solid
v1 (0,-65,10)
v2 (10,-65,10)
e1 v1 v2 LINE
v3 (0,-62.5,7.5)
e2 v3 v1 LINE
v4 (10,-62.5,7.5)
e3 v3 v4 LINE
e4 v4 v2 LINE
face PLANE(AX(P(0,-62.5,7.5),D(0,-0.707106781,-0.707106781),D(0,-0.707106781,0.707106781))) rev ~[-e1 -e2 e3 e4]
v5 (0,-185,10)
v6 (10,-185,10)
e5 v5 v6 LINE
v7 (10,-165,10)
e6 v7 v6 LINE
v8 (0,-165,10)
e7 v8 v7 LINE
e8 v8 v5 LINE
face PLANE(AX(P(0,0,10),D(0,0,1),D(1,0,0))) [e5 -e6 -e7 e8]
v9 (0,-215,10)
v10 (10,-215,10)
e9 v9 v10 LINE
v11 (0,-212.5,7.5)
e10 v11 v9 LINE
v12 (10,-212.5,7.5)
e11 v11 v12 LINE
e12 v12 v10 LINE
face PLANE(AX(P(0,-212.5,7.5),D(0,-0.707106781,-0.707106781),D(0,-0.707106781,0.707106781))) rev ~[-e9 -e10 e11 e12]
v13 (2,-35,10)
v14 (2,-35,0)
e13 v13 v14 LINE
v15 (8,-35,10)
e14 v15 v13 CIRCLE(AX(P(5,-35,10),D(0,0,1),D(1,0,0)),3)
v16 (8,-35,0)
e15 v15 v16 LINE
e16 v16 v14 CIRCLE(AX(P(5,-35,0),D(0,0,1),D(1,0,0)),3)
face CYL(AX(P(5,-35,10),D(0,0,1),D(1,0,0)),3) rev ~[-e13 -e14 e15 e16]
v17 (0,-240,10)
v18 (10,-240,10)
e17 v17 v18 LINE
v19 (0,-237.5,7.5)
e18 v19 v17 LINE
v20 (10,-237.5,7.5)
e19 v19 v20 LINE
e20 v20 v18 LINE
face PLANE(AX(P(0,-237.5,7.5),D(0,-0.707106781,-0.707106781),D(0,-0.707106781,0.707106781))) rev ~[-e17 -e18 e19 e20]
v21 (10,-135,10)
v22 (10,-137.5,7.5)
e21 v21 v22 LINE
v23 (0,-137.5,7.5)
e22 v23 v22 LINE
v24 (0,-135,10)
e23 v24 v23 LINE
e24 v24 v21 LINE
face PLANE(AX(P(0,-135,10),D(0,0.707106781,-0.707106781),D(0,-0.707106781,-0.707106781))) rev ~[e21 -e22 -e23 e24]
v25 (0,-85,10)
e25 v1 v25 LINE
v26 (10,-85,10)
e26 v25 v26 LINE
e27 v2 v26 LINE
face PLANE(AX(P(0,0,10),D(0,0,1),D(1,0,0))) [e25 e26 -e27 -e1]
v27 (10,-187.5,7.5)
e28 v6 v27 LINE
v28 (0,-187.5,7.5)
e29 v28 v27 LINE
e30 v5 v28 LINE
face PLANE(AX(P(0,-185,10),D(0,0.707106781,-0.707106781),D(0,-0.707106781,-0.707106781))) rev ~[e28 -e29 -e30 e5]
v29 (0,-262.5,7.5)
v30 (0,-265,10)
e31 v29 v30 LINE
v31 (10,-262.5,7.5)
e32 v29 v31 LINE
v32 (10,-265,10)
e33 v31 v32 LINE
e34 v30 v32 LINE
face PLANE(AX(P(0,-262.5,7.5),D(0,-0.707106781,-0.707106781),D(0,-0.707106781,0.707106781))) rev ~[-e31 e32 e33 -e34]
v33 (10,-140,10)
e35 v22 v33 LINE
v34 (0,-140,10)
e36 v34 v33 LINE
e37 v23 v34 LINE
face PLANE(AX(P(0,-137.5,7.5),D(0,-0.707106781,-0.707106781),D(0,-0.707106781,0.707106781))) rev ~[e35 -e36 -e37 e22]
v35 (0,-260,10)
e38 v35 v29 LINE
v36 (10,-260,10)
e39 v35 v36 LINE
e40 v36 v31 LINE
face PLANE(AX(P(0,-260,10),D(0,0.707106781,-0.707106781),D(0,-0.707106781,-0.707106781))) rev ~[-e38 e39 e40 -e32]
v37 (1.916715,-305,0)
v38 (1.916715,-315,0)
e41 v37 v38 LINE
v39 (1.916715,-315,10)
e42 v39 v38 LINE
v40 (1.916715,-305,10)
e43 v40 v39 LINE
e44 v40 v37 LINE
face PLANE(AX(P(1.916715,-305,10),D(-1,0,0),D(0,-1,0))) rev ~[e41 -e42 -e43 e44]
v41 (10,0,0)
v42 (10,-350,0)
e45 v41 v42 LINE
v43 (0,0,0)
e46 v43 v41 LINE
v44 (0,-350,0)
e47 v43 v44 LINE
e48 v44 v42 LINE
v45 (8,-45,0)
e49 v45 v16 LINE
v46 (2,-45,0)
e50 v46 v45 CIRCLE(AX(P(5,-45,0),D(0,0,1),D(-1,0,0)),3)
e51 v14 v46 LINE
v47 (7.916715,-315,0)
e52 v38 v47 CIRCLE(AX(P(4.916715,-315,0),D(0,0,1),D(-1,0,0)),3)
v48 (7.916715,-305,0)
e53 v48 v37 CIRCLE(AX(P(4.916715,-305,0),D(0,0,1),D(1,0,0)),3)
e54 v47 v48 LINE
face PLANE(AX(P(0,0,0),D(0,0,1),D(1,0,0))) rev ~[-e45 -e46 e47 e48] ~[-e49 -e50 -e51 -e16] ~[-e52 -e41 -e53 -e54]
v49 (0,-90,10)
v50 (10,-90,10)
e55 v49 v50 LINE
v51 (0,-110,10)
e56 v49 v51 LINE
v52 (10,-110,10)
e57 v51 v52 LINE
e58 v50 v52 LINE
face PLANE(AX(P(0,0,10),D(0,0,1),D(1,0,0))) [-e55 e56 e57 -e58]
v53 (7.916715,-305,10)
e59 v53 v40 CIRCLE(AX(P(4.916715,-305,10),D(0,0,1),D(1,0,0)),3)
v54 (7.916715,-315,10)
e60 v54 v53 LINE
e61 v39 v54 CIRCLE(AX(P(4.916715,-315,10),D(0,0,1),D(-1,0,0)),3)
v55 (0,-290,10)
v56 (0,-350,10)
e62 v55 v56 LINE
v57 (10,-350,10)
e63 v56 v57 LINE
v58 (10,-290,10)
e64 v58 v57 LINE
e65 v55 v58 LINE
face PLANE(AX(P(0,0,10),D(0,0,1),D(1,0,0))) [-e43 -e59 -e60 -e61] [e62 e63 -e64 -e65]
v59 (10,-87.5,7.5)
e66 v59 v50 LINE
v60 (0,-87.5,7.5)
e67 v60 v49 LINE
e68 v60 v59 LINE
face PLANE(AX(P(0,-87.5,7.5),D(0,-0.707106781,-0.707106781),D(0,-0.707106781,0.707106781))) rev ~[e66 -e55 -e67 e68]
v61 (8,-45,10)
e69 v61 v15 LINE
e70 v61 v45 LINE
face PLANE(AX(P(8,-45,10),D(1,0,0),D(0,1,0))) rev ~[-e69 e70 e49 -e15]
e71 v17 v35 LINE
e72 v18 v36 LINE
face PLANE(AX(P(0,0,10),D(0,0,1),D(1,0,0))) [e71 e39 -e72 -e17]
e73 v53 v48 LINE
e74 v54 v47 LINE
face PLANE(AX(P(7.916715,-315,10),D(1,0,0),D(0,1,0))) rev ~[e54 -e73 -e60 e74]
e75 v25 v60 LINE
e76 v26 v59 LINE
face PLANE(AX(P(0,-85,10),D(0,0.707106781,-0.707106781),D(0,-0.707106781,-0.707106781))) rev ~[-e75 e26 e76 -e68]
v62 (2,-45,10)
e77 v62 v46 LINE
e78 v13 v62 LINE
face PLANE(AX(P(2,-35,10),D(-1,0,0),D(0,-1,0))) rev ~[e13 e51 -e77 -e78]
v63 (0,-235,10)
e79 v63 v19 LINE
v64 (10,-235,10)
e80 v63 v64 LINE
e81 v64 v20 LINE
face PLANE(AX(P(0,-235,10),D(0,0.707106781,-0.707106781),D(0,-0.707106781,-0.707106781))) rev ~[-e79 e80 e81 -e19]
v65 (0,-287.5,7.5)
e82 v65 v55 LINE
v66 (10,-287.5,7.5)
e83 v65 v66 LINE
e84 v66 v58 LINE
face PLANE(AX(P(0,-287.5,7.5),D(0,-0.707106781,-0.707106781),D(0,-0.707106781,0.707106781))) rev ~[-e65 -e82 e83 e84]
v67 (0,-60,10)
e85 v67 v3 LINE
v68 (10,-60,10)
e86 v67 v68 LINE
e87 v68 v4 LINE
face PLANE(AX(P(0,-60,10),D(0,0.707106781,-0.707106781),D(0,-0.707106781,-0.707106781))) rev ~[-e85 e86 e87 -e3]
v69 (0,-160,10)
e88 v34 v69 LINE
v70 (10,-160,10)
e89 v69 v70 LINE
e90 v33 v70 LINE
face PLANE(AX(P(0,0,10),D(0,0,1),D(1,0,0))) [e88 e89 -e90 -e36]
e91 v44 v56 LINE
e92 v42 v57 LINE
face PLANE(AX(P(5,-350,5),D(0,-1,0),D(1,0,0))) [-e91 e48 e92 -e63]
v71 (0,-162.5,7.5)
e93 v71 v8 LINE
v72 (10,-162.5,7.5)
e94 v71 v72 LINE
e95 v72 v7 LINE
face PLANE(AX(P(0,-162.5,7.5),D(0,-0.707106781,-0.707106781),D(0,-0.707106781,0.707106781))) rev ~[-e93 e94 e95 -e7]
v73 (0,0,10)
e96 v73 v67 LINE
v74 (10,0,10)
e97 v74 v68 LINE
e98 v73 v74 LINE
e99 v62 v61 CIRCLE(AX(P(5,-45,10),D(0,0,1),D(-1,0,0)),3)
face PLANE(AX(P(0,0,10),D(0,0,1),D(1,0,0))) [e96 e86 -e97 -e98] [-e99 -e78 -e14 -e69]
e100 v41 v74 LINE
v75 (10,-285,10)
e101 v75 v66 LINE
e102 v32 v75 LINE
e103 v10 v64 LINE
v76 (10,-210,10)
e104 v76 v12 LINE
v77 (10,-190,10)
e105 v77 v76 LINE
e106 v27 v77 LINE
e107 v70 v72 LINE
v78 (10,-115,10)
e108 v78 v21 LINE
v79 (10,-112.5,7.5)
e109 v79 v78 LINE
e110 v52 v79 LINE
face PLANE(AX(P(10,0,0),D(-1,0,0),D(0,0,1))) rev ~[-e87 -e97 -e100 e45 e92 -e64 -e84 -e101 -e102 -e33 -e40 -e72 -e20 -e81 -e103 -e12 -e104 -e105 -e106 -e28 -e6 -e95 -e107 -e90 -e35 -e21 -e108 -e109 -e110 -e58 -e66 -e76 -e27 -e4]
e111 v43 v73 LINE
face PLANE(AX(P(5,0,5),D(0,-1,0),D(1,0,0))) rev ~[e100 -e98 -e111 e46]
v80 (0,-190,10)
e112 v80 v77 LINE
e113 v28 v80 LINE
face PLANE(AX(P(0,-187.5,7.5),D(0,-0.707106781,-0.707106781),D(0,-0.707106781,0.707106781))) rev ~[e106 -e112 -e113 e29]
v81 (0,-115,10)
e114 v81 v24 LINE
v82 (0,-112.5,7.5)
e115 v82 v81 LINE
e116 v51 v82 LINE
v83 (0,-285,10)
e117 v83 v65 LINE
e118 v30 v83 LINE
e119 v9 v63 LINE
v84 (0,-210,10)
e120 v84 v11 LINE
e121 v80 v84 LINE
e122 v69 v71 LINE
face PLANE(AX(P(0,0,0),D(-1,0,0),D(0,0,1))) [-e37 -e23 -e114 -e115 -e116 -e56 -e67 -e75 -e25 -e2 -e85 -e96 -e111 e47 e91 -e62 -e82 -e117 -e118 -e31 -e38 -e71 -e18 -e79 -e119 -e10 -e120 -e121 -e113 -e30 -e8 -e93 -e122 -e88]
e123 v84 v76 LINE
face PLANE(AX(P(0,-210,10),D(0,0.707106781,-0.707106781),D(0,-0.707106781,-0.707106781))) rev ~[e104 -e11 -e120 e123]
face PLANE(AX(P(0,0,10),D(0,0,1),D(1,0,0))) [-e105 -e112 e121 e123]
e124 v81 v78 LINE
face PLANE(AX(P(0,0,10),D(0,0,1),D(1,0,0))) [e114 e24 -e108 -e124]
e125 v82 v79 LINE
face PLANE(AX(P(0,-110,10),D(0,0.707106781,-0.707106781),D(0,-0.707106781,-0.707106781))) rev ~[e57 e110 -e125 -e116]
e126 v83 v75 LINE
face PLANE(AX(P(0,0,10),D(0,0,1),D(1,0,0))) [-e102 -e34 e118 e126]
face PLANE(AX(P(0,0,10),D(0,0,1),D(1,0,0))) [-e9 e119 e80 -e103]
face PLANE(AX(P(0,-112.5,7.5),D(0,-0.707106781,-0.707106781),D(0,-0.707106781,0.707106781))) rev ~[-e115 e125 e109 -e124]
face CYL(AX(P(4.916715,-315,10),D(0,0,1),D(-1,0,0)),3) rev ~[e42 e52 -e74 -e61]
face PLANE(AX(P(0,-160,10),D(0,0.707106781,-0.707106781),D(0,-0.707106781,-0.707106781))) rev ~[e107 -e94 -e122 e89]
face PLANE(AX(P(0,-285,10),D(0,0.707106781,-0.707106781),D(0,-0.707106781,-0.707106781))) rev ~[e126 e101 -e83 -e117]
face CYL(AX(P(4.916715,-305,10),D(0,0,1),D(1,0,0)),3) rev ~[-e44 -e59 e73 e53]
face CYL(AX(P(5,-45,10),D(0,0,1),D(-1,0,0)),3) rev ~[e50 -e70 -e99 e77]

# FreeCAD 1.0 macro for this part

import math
import FreeCAD as App
import Part
import Sketcher
from FreeCAD import Vector
Q = App.Units.Quantity


def add_polygon(sketch, points):
    """Adds a closed chain of lines whose ends are joined by coincident constraints."""
    first, n = sketch.GeometryCount, len(points)
    for a, b in zip(points, points[1:] + points[:1]):
        sketch.addGeometry(Part.LineSegment(App.Vector(*a, 0), App.Vector(*b, 0)), False)
    for i in range(n):
        sketch.addConstraint(Sketcher.Constraint("Coincident", first + i, 2, first + (i + 1) % n, 1))

doc = App.newDocument("Part")
params = doc.addObject("Spreadsheet::Sheet", "Params")
for row, (alias, value) in enumerate([
    ("sketch1_width", "10 mm"),
    ("pad1_length", "350 mm"),
    ("sketch2_width", "5 mm"),
    ("pocket1_length", "25 mm"),
    ("sketch3_radius", "3 mm"),
    ("sketch3_height", "10 mm"),
], start=1):
    params.set(f"A{row}", alias)
    params.set(f"B{row}", "=" + value)
    params.setAlias(f"B{row}", alias)

body = doc.addObject("PartDesign::Body", "Body")

sketch1 = body.newObject("Sketcher::SketchObject", "Sketch")
sketch1.AttachmentSupport = (doc.getObject("XZ_Plane"), [""])
sketch1.MapMode = "FlatFace"
add_polygon(sketch1, [(0, 10), (0, 0), (10, 0), (10, 10)])
sketch1.addConstraint(Sketcher.Constraint("Vertical", 0))
sketch1.addConstraint(Sketcher.Constraint("Horizontal", 1))
sketch1.addConstraint(Sketcher.Constraint("Vertical", 2))
sketch1.addConstraint(Sketcher.Constraint("Horizontal", 3))
sketch1.addConstraint(Sketcher.Constraint("Coincident", 0, 2, -1, 1))
sketch1.addConstraint(Sketcher.Constraint("Equal", 3, 0))
sketch1.addConstraint(Sketcher.Constraint("DistanceX", 1, 1, 1, 2, Q("10 mm")))
sketch1.setExpression("Constraints[10]", "Params.sketch1_width")
pad1 = body.newObject("PartDesign::Pad", "Pad")
pad1.Profile = sketch1
pad1.setExpression("Length", "Params.pad1_length")

sketch2 = body.newObject("Sketcher::SketchObject", "Sketch001")
sketch2.AttachmentSupport = (doc.getObject("YZ_Plane"), [""])
sketch2.MapMode = "FlatFace"
add_polygon(sketch2, [(-62.5, 7.5), (-65, 10), (-60, 10)])
add_polygon(sketch2, [(-87.5, 7.5), (-90, 10), (-85, 10)])
add_polygon(sketch2, [(-112.5, 7.5), (-115, 10), (-110, 10)])
add_polygon(sketch2, [(-137.5, 7.5), (-140, 10), (-135, 10)])
add_polygon(sketch2, [(-162.5, 7.5), (-165, 10), (-160, 10)])
add_polygon(sketch2, [(-187.5, 7.5), (-190, 10), (-185, 10)])
add_polygon(sketch2, [(-212.5, 7.5), (-215, 10), (-210, 10)])
add_polygon(sketch2, [(-237.5, 7.5), (-240, 10), (-235, 10)])
add_polygon(sketch2, [(-262.5, 7.5), (-265, 10), (-260, 10)])
add_polygon(sketch2, [(-287.5, 7.5), (-290, 10), (-285, 10)])
sketch2.addConstraint(Sketcher.Constraint("Horizontal", 1))
sketch2.addConstraint(Sketcher.Constraint("Horizontal", 4))
sketch2.addConstraint(Sketcher.Constraint("Horizontal", 7))
sketch2.addConstraint(Sketcher.Constraint("Horizontal", 10))
sketch2.addConstraint(Sketcher.Constraint("Horizontal", 13))
sketch2.addConstraint(Sketcher.Constraint("Horizontal", 16))
sketch2.addConstraint(Sketcher.Constraint("Horizontal", 19))
sketch2.addConstraint(Sketcher.Constraint("Horizontal", 22))
sketch2.addConstraint(Sketcher.Constraint("Horizontal", 25))
sketch2.addConstraint(Sketcher.Constraint("Horizontal", 28))
sketch2.addConstraint(Sketcher.Constraint("Perpendicular", 0, 2))
sketch2.addConstraint(Sketcher.Constraint("Perpendicular", 2, 3))
sketch2.addConstraint(Sketcher.Constraint("Perpendicular", 3, 5))
sketch2.addConstraint(Sketcher.Constraint("Perpendicular", 5, 6))
sketch2.addConstraint(Sketcher.Constraint("Perpendicular", 6, 8))
sketch2.addConstraint(Sketcher.Constraint("Perpendicular", 8, 9))
sketch2.addConstraint(Sketcher.Constraint("Perpendicular", 9, 11))
sketch2.addConstraint(Sketcher.Constraint("Perpendicular", 11, 12))
sketch2.addConstraint(Sketcher.Constraint("Perpendicular", 12, 14))
sketch2.addConstraint(Sketcher.Constraint("Perpendicular", 14, 15))
sketch2.addConstraint(Sketcher.Constraint("Perpendicular", 15, 17))
sketch2.addConstraint(Sketcher.Constraint("Perpendicular", 17, 18))
sketch2.addConstraint(Sketcher.Constraint("Perpendicular", 18, 20))
sketch2.addConstraint(Sketcher.Constraint("Perpendicular", 20, 21))
sketch2.addConstraint(Sketcher.Constraint("Perpendicular", 21, 23))
sketch2.addConstraint(Sketcher.Constraint("Perpendicular", 23, 24))
sketch2.addConstraint(Sketcher.Constraint("Perpendicular", 24, 26))
sketch2.addConstraint(Sketcher.Constraint("Perpendicular", 26, 27))
sketch2.addConstraint(Sketcher.Constraint("Perpendicular", 27, 29))
sketch2.addConstraint(Sketcher.Constraint("Horizontal", 1, 2, 3, 2))
sketch2.addConstraint(Sketcher.Constraint("Horizontal", 2, 2, 5, 2))
sketch2.addConstraint(Sketcher.Constraint("Horizontal", 4, 2, 6, 2))
sketch2.addConstraint(Sketcher.Constraint("Horizontal", 5, 2, 8, 2))
sketch2.addConstraint(Sketcher.Constraint("Horizontal", 7, 2, 9, 2))
sketch2.addConstraint(Sketcher.Constraint("Horizontal", 8, 2, 11, 2))
sketch2.addConstraint(Sketcher.Constraint("Horizontal", 10, 2, 12, 2))
sketch2.addConstraint(Sketcher.Constraint("Horizontal", 11, 2, 14, 2))
sketch2.addConstraint(Sketcher.Constraint("Horizontal", 13, 2, 15, 2))
sketch2.addConstraint(Sketcher.Constraint("Horizontal", 14, 2, 17, 2))
sketch2.addConstraint(Sketcher.Constraint("Horizontal", 16, 2, 18, 2))
sketch2.addConstraint(Sketcher.Constraint("Horizontal", 17, 2, 20, 2))
sketch2.addConstraint(Sketcher.Constraint("Horizontal", 19, 2, 21, 2))
sketch2.addConstraint(Sketcher.Constraint("Horizontal", 20, 2, 23, 2))
sketch2.addConstraint(Sketcher.Constraint("Horizontal", 22, 2, 24, 2))
sketch2.addConstraint(Sketcher.Constraint("Horizontal", 23, 2, 26, 2))
sketch2.addConstraint(Sketcher.Constraint("Horizontal", 25, 2, 27, 2))
sketch2.addConstraint(Sketcher.Constraint("Horizontal", 26, 2, 29, 2))
sketch2.addConstraint(Sketcher.Constraint("Equal", 0, 2))
sketch2.addConstraint(Sketcher.Constraint("DistanceX", 1, 1, 1, 2, Q("5 mm")))
sketch2.addConstraint(Sketcher.Constraint("DistanceX", 0, 2, -1, 1, Q("65 mm")))
sketch2.addConstraint(Sketcher.Constraint("DistanceY", -1, 1, 0, 2, Q("10 mm")))
sketch2.addConstraint(Sketcher.Constraint("DistanceX", 3, 2, -1, 1, Q("90 mm")))
sketch2.addConstraint(Sketcher.Constraint("DistanceX", 6, 2, -1, 1, Q("115 mm")))
sketch2.addConstraint(Sketcher.Constraint("DistanceX", 9, 2, -1, 1, Q("140 mm")))
sketch2.addConstraint(Sketcher.Constraint("DistanceX", 12, 2, -1, 1, Q("165 mm")))
sketch2.addConstraint(Sketcher.Constraint("DistanceX", 15, 2, -1, 1, Q("190 mm")))
sketch2.addConstraint(Sketcher.Constraint("DistanceX", 18, 2, -1, 1, Q("215 mm")))
sketch2.addConstraint(Sketcher.Constraint("DistanceX", 21, 2, -1, 1, Q("240 mm")))
sketch2.addConstraint(Sketcher.Constraint("DistanceX", 24, 2, -1, 1, Q("265 mm")))
sketch2.addConstraint(Sketcher.Constraint("DistanceX", 27, 2, -1, 1, Q("290 mm")))
sketch2.setExpression("Constraints[78]", "Params.sketch2_width")
pocket1 = body.newObject("PartDesign::Pocket", "Pocket")
pocket1.Profile = sketch2
pocket1.setExpression("Length", "Params.pocket1_length")
pocket1.Reversed = True

sketch3 = body.newObject("Sketcher::SketchObject", "Sketch002")
sketch3.AttachmentSupport = (doc.getObject("XY_Plane"), [""])
sketch3.MapMode = "FlatFace"
sketch3.AttachmentOffset = App.Placement(Vector(0, 0, 10), App.Rotation())
sketch3.addGeometry(Part.LineSegment(Vector(8, -45, 0), Vector(8, -35, 0)), False)
sketch3.addGeometry(Part.ArcOfCircle(Part.Circle(Vector(5, -35, 0), Vector(0, 0, 1), 3), math.radians(0), math.radians(180)), False)
sketch3.addGeometry(Part.LineSegment(Vector(2, -35, 0), Vector(2, -45, 0)), False)
sketch3.addGeometry(Part.ArcOfCircle(Part.Circle(Vector(5, -45, 0), Vector(0, 0, 1), 3), math.radians(180), math.radians(360)), False)
sketch3.addGeometry(Part.LineSegment(Vector(7.9, -315, 0), Vector(7.9, -305, 0)), False)
sketch3.addGeometry(Part.ArcOfCircle(Part.Circle(Vector(4.9, -305, 0), Vector(0, 0, 1), 3), math.radians(0), math.radians(180)), False)
sketch3.addGeometry(Part.LineSegment(Vector(1.9, -305, 0), Vector(1.9, -315, 0)), False)
sketch3.addGeometry(Part.ArcOfCircle(Part.Circle(Vector(4.9, -315, 0), Vector(0, 0, 1), 3), math.radians(180), math.radians(360)), False)
sketch3.addConstraint(Sketcher.Constraint("Tangent", 0, 2, 1, 1))
sketch3.addConstraint(Sketcher.Constraint("Tangent", 1, 2, 2, 1))
sketch3.addConstraint(Sketcher.Constraint("Tangent", 2, 2, 3, 1))
sketch3.addConstraint(Sketcher.Constraint("Tangent", 3, 2, 0, 1))
sketch3.addConstraint(Sketcher.Constraint("Tangent", 4, 2, 5, 1))
sketch3.addConstraint(Sketcher.Constraint("Tangent", 5, 2, 6, 1))
sketch3.addConstraint(Sketcher.Constraint("Tangent", 6, 2, 7, 1))
sketch3.addConstraint(Sketcher.Constraint("Tangent", 7, 2, 4, 1))
sketch3.addConstraint(Sketcher.Constraint("Vertical", 0))
sketch3.addConstraint(Sketcher.Constraint("Vertical", 2))
sketch3.addConstraint(Sketcher.Constraint("Vertical", 4))
sketch3.addConstraint(Sketcher.Constraint("Vertical", 6))
sketch3.addConstraint(Sketcher.Constraint("Equal", 3, 5))
sketch3.addConstraint(Sketcher.Constraint("Equal", 2, 4))
sketch3.addConstraint(Sketcher.Constraint("Radius", 1, Q("3 mm")))
sketch3.addConstraint(Sketcher.Constraint("DistanceY", 0, 1, 0, 2, Q("10 mm")))
sketch3.addConstraint(Sketcher.Constraint("DistanceX", -1, 1, 1, 3, Q("5 mm")))
sketch3.addConstraint(Sketcher.Constraint("DistanceY", 1, 3, -1, 1, Q("35 mm")))
sketch3.addConstraint(Sketcher.Constraint("DistanceY", 5, 3, -1, 1, Q("305 mm")))
sketch3.addConstraint(Sketcher.Constraint("DistanceX", -1, 1, 5, 3, Q("4.916715 mm")))
sketch3.setExpression("Constraints[14]", "Params.sketch3_radius")
sketch3.setExpression("Constraints[15]", "Params.sketch3_height")
pocket2 = body.newObject("PartDesign::Pocket", "Pocket001")
pocket2.Profile = sketch3
pocket2.Type = "ThroughAll"

doc.recompute()
